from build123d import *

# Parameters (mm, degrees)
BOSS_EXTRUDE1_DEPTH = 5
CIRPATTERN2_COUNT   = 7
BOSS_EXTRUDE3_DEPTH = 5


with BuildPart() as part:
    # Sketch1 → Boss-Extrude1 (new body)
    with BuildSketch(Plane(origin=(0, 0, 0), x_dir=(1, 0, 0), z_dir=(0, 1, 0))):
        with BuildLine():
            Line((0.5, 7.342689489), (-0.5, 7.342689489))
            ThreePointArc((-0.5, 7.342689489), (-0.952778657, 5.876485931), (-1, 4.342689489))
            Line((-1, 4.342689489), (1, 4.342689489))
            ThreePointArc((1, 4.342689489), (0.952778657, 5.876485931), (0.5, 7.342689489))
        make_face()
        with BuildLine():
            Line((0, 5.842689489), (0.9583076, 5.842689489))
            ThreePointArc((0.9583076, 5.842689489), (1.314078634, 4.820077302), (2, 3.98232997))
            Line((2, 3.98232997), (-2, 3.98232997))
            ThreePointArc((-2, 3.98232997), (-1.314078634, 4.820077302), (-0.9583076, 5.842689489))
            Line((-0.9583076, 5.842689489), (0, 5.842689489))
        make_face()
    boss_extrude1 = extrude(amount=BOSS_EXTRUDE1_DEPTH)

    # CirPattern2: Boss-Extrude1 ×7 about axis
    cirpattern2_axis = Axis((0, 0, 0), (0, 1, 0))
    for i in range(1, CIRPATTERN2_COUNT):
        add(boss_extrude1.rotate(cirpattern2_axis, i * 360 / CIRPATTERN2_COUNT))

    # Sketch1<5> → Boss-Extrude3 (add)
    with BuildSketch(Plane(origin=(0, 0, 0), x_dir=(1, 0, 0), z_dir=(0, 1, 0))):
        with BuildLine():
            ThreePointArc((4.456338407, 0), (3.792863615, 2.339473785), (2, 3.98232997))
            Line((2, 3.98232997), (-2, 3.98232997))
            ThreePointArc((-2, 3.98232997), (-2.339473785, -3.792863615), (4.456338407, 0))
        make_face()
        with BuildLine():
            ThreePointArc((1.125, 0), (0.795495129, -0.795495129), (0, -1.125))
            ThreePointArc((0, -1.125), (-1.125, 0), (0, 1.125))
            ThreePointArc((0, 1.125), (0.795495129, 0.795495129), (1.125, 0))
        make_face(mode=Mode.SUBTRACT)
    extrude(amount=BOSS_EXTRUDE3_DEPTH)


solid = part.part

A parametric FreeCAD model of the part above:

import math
import FreeCAD as App
import Part
import Sketcher

V = App.Vector
Q = App.Units.Quantity

doc = App.newDocument("Part")
body = doc.addObject("PartDesign::Body", "Body")

# Sketch on XZ plane
sketch1 = doc.addObject("Sketcher::SketchObject", "Sketch")
body.addObject(sketch1)
sketch1.AttachmentSupport = (doc.XZ_Plane, [""])
sketch1.MapMode = "FlatFace"
sketch1.addGeometry(Part.ArcOfCircle(Part.Circle(V(-4.7, -4.9, 0), V(0, 0, 1), 5.7), math.radians(-24.86), math.radians(-9.12)), False)
sketch1.addGeometry(Part.LineSegment(V(0.5, -7.3, 0), V(-0.5, -7.3, 0)), False)
sketch1.addGeometry(Part.ArcOfCircle(Part.Circle(V(4.7, -4.9, 0), V(0, 0, 1), 5.7), math.radians(-170.88), math.radians(-155.14)), False)
sketch1.addGeometry(Part.ArcOfCircle(Part.Circle(V(-4, -6.3, 0), V(0, 0, 1), 3.1), math.radians(9), math.radians(49)), False)
sketch1.addGeometry(Part.LineSegment(V(-2, -4, 0), V(2, -4, 0)), False)
sketch1.addGeometry(Part.ArcOfCircle(Part.Circle(V(4, -6.3, 0), V(0, 0, 1), 3.1), math.radians(131), math.radians(171)), False)
sketch1.addConstraint(Sketcher.Constraint("Coincident", 0, 1, 1, 1))
sketch1.addConstraint(Sketcher.Constraint("Coincident", 1, 2, 2, 2))
sketch1.addConstraint(Sketcher.Constraint("Tangent", 2, 1, 3, 1))
sketch1.addConstraint(Sketcher.Constraint("Coincident", 3, 2, 4, 1))
sketch1.addConstraint(Sketcher.Constraint("Coincident", 4, 2, 5, 1))
sketch1.addConstraint(Sketcher.Constraint("Tangent", 5, 2, 0, 2))
sketch1.addConstraint(Sketcher.Constraint("Horizontal", 1))
sketch1.addConstraint(Sketcher.Constraint("Horizontal", 4))
sketch1.addConstraint(Sketcher.Constraint("Equal", 0, 2))
sketch1.addConstraint(Sketcher.Constraint("Equal", 3, 5))
sketch1.addConstraint(Sketcher.Constraint("Symmetric", 0, 3, 2, 3, -2))
sketch1.addConstraint(Sketcher.Constraint("Horizontal", 3, 3, 5, 3))
sketch1.addConstraint(Sketcher.Constraint("DistanceX", 1, 2, 1, 1, Q("1 mm")))
sketch1.addConstraint(Sketcher.Constraint("DistanceX", 4, 1, 4, 2, Q("4 mm")))
sketch1.addConstraint(Sketcher.Constraint("Radius", 3, Q("3.098201 mm")))
sketch1.addConstraint(Sketcher.Constraint("DistanceY", 1, 2, 2, 1, Q("1.5 mm")))
sketch1.addConstraint(Sketcher.Constraint("Radius", 0, Q("5.727236 mm")))
sketch1.addConstraint(Sketcher.Constraint("DistanceX", 0, 3, -1, 1, Q("4.696532 mm")))
sketch1.addConstraint(Sketcher.Constraint("DistanceY", 3, 3, -1, 1, Q("6.333748 mm")))
pad1 = doc.addObject("PartDesign::Pad", "Pad")
body.addObject(pad1)
pad1.Profile = sketch1
pad1.Length = 5
pad1.Reversed = True
doc.recompute()

polarpattern = doc.addObject("PartDesign::PolarPattern", "PolarPattern")
body.addObject(polarpattern)
polarpattern.Originals = [pad1]
polarpattern.Axis = (doc.Y_Axis, [""])
polarpattern.Angle = 360
polarpattern.Occurrences = 7
body.Tip = polarpattern

# Sketch on XZ plane
sketch2 = doc.addObject("Sketcher::SketchObject", "Sketch001")
body.addObject(sketch2)
sketch2.AttachmentSupport = (doc.XZ_Plane, [""])
sketch2.MapMode = "FlatFace"
sketch2.addGeometry(Part.ArcOfCircle(Part.Circle(V(0, 0, 0), V(0, 0, 1), 4.5), math.radians(-63), math.radians(0)), False)
sketch2.addGeometry(Part.LineSegment(V(2, -4, 0), V(-2, -4, 0)), False)
sketch2.addGeometry(Part.ArcOfCircle(Part.Circle(V(0, 0, 0), V(0, 0, 1), 4.5), math.radians(0), math.radians(243)), False)
sketch2.addGeometry(Part.ArcOfCircle(Part.Circle(V(0, 0, 0), V(0, 0, 1), 1.1), math.radians(-90), math.radians(0)), False)
sketch2.addGeometry(Part.ArcOfCircle(Part.Circle(V(0, 0, 0), V(0, 0, 1), 1.1), math.radians(0), math.radians(90)), False)
sketch2.addGeometry(Part.ArcOfCircle(Part.Circle(V(0, 0, 0), V(0, 0, 1), 1.1), math.radians(90), math.radians(270)), False)
sketch2.addConstraint(Sketcher.Constraint("Coincident", 0, 1, 1, 1))
sketch2.addConstraint(Sketcher.Constraint("Coincident", 1, 2, 2, 2))
sketch2.addConstraint(Sketcher.Constraint("Tangent", 2, 1, 0, 2))
sketch2.addConstraint(Sketcher.Constraint("Tangent", 3, 2, 4, 1))
sketch2.addConstraint(Sketcher.Constraint("Tangent", 4, 2, 5, 1))
sketch2.addConstraint(Sketcher.Constraint("Tangent", 5, 2, 3, 1))
sketch2.addConstraint(Sketcher.Constraint("Horizontal", 1))
sketch2.addConstraint(Sketcher.Constraint("Coincident", 0, 3, -1, 1))
sketch2.addConstraint(Sketcher.Constraint("Coincident", 3, 3, -1, 1))
sketch2.addConstraint(Sketcher.Constraint("Equal", 0, 2))
sketch2.addConstraint(Sketcher.Constraint("PointOnObject", 2, 1, -1))
sketch2.addConstraint(Sketcher.Constraint("PointOnObject", 3, 2, -1))
sketch2.addConstraint(Sketcher.Constraint("PointOnObject", 4, 2, -2))
sketch2.addConstraint(Sketcher.Constraint("PointOnObject", 5, 2, -2))
sketch2.addConstraint(Sketcher.Constraint("DistanceX", 1, 2, 1, 1, Q("4 mm")))
sketch2.addConstraint(Sketcher.Constraint("Radius", 3, Q("1.125 mm")))
sketch2.addConstraint(Sketcher.Constraint("Radius", 0, Q("4.456338 mm")))
pad2 = doc.addObject("PartDesign::Pad", "Pad001")
body.addObject(pad2)
pad2.Profile = sketch2
pad2.Length = 5
pad2.Reversed = True

doc.recompute()
